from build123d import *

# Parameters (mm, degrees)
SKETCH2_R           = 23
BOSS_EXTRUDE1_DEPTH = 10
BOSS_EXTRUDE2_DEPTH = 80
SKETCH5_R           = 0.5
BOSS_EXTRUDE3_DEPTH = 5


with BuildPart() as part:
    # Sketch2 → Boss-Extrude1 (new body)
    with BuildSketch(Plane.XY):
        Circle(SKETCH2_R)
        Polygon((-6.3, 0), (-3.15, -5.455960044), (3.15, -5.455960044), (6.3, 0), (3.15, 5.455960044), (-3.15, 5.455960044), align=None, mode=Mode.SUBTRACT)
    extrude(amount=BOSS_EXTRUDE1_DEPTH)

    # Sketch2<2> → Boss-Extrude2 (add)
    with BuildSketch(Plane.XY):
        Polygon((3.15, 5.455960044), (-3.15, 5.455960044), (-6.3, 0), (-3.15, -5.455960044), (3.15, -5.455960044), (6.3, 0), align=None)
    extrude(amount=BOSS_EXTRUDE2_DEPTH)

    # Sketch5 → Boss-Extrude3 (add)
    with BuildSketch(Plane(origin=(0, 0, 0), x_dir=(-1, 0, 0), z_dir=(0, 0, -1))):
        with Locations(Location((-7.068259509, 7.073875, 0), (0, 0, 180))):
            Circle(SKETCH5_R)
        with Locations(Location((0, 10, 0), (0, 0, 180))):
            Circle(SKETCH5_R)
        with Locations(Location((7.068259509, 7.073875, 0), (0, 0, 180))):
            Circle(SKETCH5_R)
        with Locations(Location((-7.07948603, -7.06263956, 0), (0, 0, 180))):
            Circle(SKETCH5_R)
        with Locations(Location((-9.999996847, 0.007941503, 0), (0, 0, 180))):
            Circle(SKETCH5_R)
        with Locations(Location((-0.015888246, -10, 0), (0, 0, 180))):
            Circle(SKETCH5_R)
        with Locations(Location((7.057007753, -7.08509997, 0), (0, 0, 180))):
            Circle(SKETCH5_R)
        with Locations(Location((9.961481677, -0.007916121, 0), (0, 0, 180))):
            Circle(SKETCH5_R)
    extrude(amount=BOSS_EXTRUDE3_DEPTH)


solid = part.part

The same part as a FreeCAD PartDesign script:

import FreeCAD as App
import Part
import Sketcher
from FreeCAD import Vector
Q = App.Units.Quantity

doc = App.newDocument("Part")
body = doc.addObject("PartDesign::Body", "Body")

sketch1 = body.newObject("Sketcher::SketchObject", "Sketch")
sketch1.AttachmentSupport = (doc.getObject("XY_Plane"), [""])
sketch1.MapMode = "FlatFace"
sketch1.addGeometry(Part.Circle(Vector(0, 0, 0), Vector(0, 0, 1), 23), False)
sketch1.addGeometry(Part.LineSegment(Vector(-3.15, -5.45596, 0), Vector(-6.3, 0, 0)), False)
sketch1.addGeometry(Part.LineSegment(Vector(-6.3, 0, 0), Vector(-3.15, 5.45596, 0)), False)
sketch1.addGeometry(Part.LineSegment(Vector(-3.15, 5.45596, 0), Vector(3.15, 5.45596, 0)), False)
sketch1.addGeometry(Part.LineSegment(Vector(3.15, 5.45596, 0), Vector(6.3, 0, 0)), False)
sketch1.addGeometry(Part.LineSegment(Vector(6.3, 0, 0), Vector(3.15, -5.45596, 0)), False)
sketch1.addGeometry(Part.LineSegment(Vector(3.15, -5.45596, 0), Vector(-3.15, -5.45596, 0)), False)
sketch1.addConstraint(Sketcher.Constraint("Coincident", 1, 2, 2, 1))
sketch1.addConstraint(Sketcher.Constraint("Coincident", 2, 2, 3, 1))
sketch1.addConstraint(Sketcher.Constraint("Coincident", 3, 2, 4, 1))
sketch1.addConstraint(Sketcher.Constraint("Coincident", 4, 2, 5, 1))
sketch1.addConstraint(Sketcher.Constraint("Coincident", 5, 2, 6, 1))
sketch1.addConstraint(Sketcher.Constraint("Coincident", 6, 2, 1, 1))
sketch1.addConstraint(Sketcher.Constraint("Horizontal", 3))
sketch1.addConstraint(Sketcher.Constraint("Horizontal", 6))
sketch1.addConstraint(Sketcher.Constraint("Coincident", 0, 3, -1, 1))
sketch1.addConstraint(Sketcher.Constraint("Symmetric", 1, 2, 4, 2, -1, 1))
sketch1.addConstraint(Sketcher.Constraint("Symmetric", 2, 2, 5, 2, -1, 1))
sketch1.addConstraint(Sketcher.Constraint("PointOnObject", 1, 2, -1))
sketch1.addConstraint(Sketcher.Constraint("Parallel", 1, 4))
sketch1.addConstraint(Sketcher.Constraint("Vertical", 3, 2, 5, 2))
sketch1.addConstraint(Sketcher.Constraint("Diameter", 0, 46.0))
sketch1.addConstraint(Sketcher.Constraint("Angle", 1, Q("120 deg")))
sketch1.addConstraint(Sketcher.Constraint("DistanceX", 3, 1, 3, 2, 6.3))
sketch1.addConstraint(Sketcher.Constraint("Distance", 1, 6.3))
pad1 = body.newObject("PartDesign::Pad", "Pad")
pad1.Profile = sketch1
pad1.Length = 10

sketch2 = body.newObject("Sketcher::SketchObject", "Sketch001")
sketch2.AttachmentSupport = (doc.getObject("XY_Plane"), [""])
sketch2.MapMode = "FlatFace"
sketch2.addGeometry(Part.LineSegment(Vector(3.15, 5.45596, 0), Vector(-3.15, 5.45596, 0)), False)
sketch2.addGeometry(Part.LineSegment(Vector(-3.15, 5.45596, 0), Vector(-6.3, 0, 0)), False)
sketch2.addGeometry(Part.LineSegment(Vector(-6.3, 0, 0), Vector(-3.15, -5.45596, 0)), False)
sketch2.addGeometry(Part.LineSegment(Vector(-3.15, -5.45596, 0), Vector(3.15, -5.45596, 0)), False)
sketch2.addGeometry(Part.LineSegment(Vector(3.15, -5.45596, 0), Vector(6.3, 0, 0)), False)
sketch2.addGeometry(Part.LineSegment(Vector(6.3, 0, 0), Vector(3.15, 5.45596, 0)), False)
sketch2.addConstraint(Sketcher.Constraint("Coincident", 0, 2, 1, 1))
sketch2.addConstraint(Sketcher.Constraint("Coincident", 1, 2, 2, 1))
sketch2.addConstraint(Sketcher.Constraint("Coincident", 2, 2, 3, 1))
sketch2.addConstraint(Sketcher.Constraint("Coincident", 3, 2, 4, 1))
sketch2.addConstraint(Sketcher.Constraint("Coincident", 4, 2, 5, 1))
sketch2.addConstraint(Sketcher.Constraint("Coincident", 5, 2, 0, 1))
sketch2.addConstraint(Sketcher.Constraint("Horizontal", 0))
sketch2.addConstraint(Sketcher.Constraint("Horizontal", 3))
sketch2.addConstraint(Sketcher.Constraint("Symmetric", 0, 2, 3, 2, -1, 1))
sketch2.addConstraint(Sketcher.Constraint("Symmetric", 1, 2, 4, 2, -1, 1))
sketch2.addConstraint(Sketcher.Constraint("PointOnObject", 1, 2, -1))
sketch2.addConstraint(Sketcher.Constraint("Parallel", 2, 5))
sketch2.addConstraint(Sketcher.Constraint("Vertical", 0, 2, 2, 2))
sketch2.addConstraint(Sketcher.Constraint("Angle", 1, Q("-120 deg")))
sketch2.addConstraint(Sketcher.Constraint("DistanceX", 0, 2, 0, 1, 6.3))
sketch2.addConstraint(Sketcher.Constraint("Distance", 1, 6.3))
pad2 = body.newObject("PartDesign::Pad", "Pad001")
pad2.Profile = sketch2
pad2.Length = 80

sketch3 = body.newObject("Sketcher::SketchObject", "Sketch002")
sketch3.AttachmentSupport = (doc.getObject("XY_Plane"), [""])
sketch3.MapMode = "FlatFace"
sketch3.addGeometry(Part.Circle(Vector(7.06826, 7.073875, 0), Vector(0, 0, 1), 0.5), False)
sketch3.addGeometry(Part.Circle(Vector(0, 10, 0), Vector(0, 0, 1), 0.5), False)
sketch3.addGeometry(Part.Circle(Vector(-7.06826, 7.073875, 0), Vector(0, 0, 1), 0.5), False)
sketch3.addGeometry(Part.Circle(Vector(7.079486, -7.06264, 0), Vector(0, 0, 1), 0.5), False)
sketch3.addGeometry(Part.Circle(Vector(9.999997, 0.007942, 0), Vector(0, 0, 1), 0.5), False)
sketch3.addGeometry(Part.Circle(Vector(0.015888, -10, 0), Vector(0, 0, 1), 0.5), False)
sketch3.addGeometry(Part.Circle(Vector(-7.057008, -7.0851, 0), Vector(0, 0, 1), 0.5), False)
sketch3.addGeometry(Part.Circle(Vector(-9.961482, -0.007916, 0), Vector(0, 0, 1), 0.5), False)
sketch3.addConstraint(Sketcher.Constraint("Equal", 0, 1))
sketch3.addConstraint(Sketcher.Constraint("Equal", 1, 2))
sketch3.addConstraint(Sketcher.Constraint("Equal", 2, 3))
sketch3.addConstraint(Sketcher.Constraint("Equal", 3, 4))
sketch3.addConstraint(Sketcher.Constraint("Equal", 4, 5))
sketch3.addConstraint(Sketcher.Constraint("Equal", 5, 6))
sketch3.addConstraint(Sketcher.Constraint("Equal", 6, 7))
sketch3.addConstraint(Sketcher.Constraint("Symmetric", 0, 3, 2, 3, -2))
sketch3.addConstraint(Sketcher.Constraint("PointOnObject", 1, 3, -2))
sketch3.addConstraint(Sketcher.Constraint("Diameter", 0, 1.0))
sketch3.addConstraint(Sketcher.Constraint("DistanceY", -1, 1, 1, 3, 10.0))
sketch3.addConstraint(Sketcher.Constraint("DistanceY", 5, 3, -1, 1, 10.0))
sketch3.addConstraint(Sketcher.Constraint("DistanceY", 6, 3, -1, 1, 7.0851))
sketch3.addConstraint(Sketcher.Constraint("DistanceX", -1, 1, 0, 3, 7.06826))
sketch3.addConstraint(Sketcher.Constraint("DistanceY", 3, 3, -1, 1, 7.06264))
sketch3.addConstraint(Sketcher.Constraint("DistanceY", -1, 1, 4, 3, 0.007942))
sketch3.addConstraint(Sketcher.Constraint("DistanceX", -1, 1, 5, 3, 0.015888))
sketch3.addConstraint(Sketcher.Constraint("DistanceX", 7, 3, -1, 1, 9.961482))
sketch3.addConstraint(Sketcher.Constraint("DistanceX", 3, 3, 4, 3, 2.920511))
sketch3.addConstraint(Sketcher.Constraint("DistanceX", 5, 3, 4, 3, 9.984109))
sketch3.addConstraint(Sketcher.Constraint("DistanceX", 2, 3, 6, 3, 0.011252))
sketch3.addConstraint(Sketcher.Constraint("DistanceY", 7, 3, 2, 3, 7.081791))
sketch3.addConstraint(Sketcher.Constraint("DistanceY", -1, 1, 0, 3, 7.073875))
pad3 = body.newObject("PartDesign::Pad", "Pad002")
pad3.Profile = sketch3
pad3.Length = 5
pad3.Reversed = True

doc.recompute()
